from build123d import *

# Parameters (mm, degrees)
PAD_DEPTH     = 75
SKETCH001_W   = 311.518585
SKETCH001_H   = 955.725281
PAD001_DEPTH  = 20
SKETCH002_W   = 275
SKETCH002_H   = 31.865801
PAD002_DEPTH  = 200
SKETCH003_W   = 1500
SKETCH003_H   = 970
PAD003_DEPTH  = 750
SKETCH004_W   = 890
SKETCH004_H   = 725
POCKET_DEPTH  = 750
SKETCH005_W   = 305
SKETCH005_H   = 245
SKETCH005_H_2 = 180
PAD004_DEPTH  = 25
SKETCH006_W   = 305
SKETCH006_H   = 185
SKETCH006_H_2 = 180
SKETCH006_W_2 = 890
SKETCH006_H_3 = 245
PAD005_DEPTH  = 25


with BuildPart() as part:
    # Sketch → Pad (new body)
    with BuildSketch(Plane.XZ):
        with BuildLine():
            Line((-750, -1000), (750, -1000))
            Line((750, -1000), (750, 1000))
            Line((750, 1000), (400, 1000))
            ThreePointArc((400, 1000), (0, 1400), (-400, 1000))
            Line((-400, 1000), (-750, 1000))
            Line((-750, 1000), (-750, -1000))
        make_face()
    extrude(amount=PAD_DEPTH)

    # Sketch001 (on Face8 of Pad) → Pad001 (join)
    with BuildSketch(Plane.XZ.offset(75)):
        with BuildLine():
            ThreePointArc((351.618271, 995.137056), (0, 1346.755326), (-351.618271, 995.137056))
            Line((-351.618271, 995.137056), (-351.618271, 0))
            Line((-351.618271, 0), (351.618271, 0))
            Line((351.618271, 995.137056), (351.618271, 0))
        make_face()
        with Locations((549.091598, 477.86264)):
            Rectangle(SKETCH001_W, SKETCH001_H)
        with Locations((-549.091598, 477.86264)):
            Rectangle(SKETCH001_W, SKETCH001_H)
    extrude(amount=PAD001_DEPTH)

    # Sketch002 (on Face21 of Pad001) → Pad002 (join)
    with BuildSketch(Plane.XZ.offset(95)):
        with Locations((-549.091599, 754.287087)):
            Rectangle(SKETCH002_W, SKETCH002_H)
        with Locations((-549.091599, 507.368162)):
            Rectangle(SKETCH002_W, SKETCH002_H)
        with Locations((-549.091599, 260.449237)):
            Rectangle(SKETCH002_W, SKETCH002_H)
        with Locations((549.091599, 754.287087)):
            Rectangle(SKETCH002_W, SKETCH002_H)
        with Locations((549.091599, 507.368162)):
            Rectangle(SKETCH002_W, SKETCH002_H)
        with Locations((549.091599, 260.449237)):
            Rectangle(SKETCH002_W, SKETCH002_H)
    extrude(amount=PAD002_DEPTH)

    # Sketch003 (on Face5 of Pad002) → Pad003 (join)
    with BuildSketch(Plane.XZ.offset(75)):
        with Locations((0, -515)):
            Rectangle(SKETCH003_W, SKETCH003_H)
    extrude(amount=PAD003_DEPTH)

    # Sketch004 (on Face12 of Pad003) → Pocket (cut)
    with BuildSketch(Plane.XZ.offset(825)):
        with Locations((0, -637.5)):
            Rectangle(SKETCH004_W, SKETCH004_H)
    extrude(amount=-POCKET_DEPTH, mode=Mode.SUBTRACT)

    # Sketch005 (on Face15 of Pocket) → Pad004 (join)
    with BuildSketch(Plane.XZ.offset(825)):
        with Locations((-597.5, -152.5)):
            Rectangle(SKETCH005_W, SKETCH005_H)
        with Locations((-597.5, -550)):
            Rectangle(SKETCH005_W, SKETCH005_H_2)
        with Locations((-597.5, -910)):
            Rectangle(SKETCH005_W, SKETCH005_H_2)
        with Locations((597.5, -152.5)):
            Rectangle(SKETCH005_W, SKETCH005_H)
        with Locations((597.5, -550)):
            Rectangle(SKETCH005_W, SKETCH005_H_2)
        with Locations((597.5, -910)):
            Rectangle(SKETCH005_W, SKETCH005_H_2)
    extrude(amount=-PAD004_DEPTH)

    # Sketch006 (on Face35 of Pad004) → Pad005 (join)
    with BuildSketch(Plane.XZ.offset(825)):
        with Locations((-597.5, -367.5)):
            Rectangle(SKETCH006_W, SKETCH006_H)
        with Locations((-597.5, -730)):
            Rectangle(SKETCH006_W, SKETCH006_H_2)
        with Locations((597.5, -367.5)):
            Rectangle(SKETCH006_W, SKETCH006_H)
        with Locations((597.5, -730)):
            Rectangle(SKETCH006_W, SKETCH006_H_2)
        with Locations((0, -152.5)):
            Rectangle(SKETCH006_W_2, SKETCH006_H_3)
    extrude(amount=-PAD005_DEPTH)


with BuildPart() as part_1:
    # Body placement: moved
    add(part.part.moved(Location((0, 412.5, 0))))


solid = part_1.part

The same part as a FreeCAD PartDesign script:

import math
import FreeCAD as App
import Part
import Sketcher

V = App.Vector


def add_polygon(sketch, points):
    """Adds a closed chain of lines whose ends are joined by coincident constraints."""
    first, n = sketch.GeometryCount, len(points)
    for a, b in zip(points, points[1:] + points[:1]):
        sketch.addGeometry(Part.LineSegment(App.Vector(*a, 0), App.Vector(*b, 0)), False)
    for i in range(n):
        sketch.addConstraint(Sketcher.Constraint("Coincident", first + i, 2, first + (i + 1) % n, 1))

doc = App.newDocument("Part")
body = doc.addObject("PartDesign::Body", "Body")

# Sketch on XZ plane
sketch1 = body.newObject("Sketcher::SketchObject", "Sketch")
sketch1.AttachmentSupport = (doc.getObject("XZ_Plane"), [""])
sketch1.MapMode = "FlatFace"
sketch1.addGeometry([
    Part.LineSegment(V(-750, -1000, 0), V(750, -1000, 0)),  # 0
    Part.LineSegment(V(750, -1000, 0), V(750, 1000, 0)),  # 1
    Part.LineSegment(V(750, 1000, 0), V(400, 1000, 0)),  # 2
    Part.ArcOfCircle(Part.Circle(V(0, 1000, 0), V(0, 0, 1), 400), math.radians(0), math.radians(180)),  # 3
    Part.LineSegment(V(-400, 1000, 0), V(-750, 1000, 0)),  # 4
    Part.LineSegment(V(-750, 1000, 0), V(-750, -1000, 0)),  # 5
], False)
sketch1.addConstraint([
    Sketcher.Constraint("Coincident", 0, 2, 1, 1),
    Sketcher.Constraint("Coincident", 1, 2, 2, 1),
    Sketcher.Constraint("Coincident", 2, 2, 3, 1),
    Sketcher.Constraint("Coincident", 3, 2, 4, 1),
    Sketcher.Constraint("Coincident", 4, 2, 5, 1),
    Sketcher.Constraint("Coincident", 5, 2, 0, 1),
    Sketcher.Constraint("Horizontal", 0),
    Sketcher.Constraint("Vertical", 1),
    Sketcher.Constraint("Horizontal", 2),
    Sketcher.Constraint("Horizontal", 4),
    Sketcher.Constraint("Vertical", 5),
    Sketcher.Constraint("Symmetric", 0, 2, 4, 2, -1, 1),
    Sketcher.Constraint("PointOnObject", 3, 3, -2),
    Sketcher.Constraint("Horizontal", 3, 3, 1, 2),
    Sketcher.Constraint("Equal", 1, 5),
    Sketcher.Constraint("Radius", 3, 400.0),
    Sketcher.Constraint("DistanceX", 0, 1, 0, 2, 1500.0),
    Sketcher.Constraint("DistanceY", 1, 1, 1, 2, 2000.0),
])
pad1 = body.newObject("PartDesign::Pad", "Pad")
pad1.Profile = sketch1
pad1.Length = 75

# Sketch on XZ plane
sketch2 = body.newObject("Sketcher::SketchObject", "Sketch001")
sketch2.AttachmentSupport = (doc.getObject("XZ_Plane"), [""])
sketch2.MapMode = "FlatFace"
sketch2.AttachmentOffset = App.Placement(V(0, 0, 75), App.Rotation())
sketch2.addGeometry(Part.ArcOfCircle(Part.Circle(V(0, 995, 0), V(0, 0, 1), 352), math.radians(0), math.radians(180)), False)  # 0
sketch2.addGeometry(Part.LineSegment(V(-352, 995, 0), V(-352, 0, 0)), False)  # 1
sketch2.addGeometry(Part.LineSegment(V(-352, 0, 0), V(352, 0, 0)), False)  # 2
sketch2.addGeometry(Part.LineSegment(V(352, 0, 0), V(352, 995, 0)), False)  # 3
add_polygon(sketch2, [(393, 956), (393, 0), (705, 0), (705, 956)])  # lines 4-7
add_polygon(sketch2, [(-705, 956), (-705, 0), (-393, 0), (-393, 956)])  # lines 8-11
sketch2.addConstraint([
    Sketcher.Constraint("Tangent", 0, 2, 1, 1),
    Sketcher.Constraint("Coincident", 1, 2, 2, 1),
    Sketcher.Constraint("Coincident", 2, 2, 3, 1),
    Sketcher.Constraint("Tangent", 3, 2, 0, 1),
    Sketcher.Constraint("Vertical", 1),
    Sketcher.Constraint("Horizontal", 2),
    Sketcher.Constraint("Vertical", 3),
    Sketcher.Constraint("Vertical", 4),
    Sketcher.Constraint("Horizontal", 5),
    Sketcher.Constraint("Vertical", 6),
    Sketcher.Constraint("Horizontal", 7),
    Sketcher.Constraint("Vertical", 8),
    Sketcher.Constraint("Horizontal", 9),
    Sketcher.Constraint("Vertical", 10),
    Sketcher.Constraint("Horizontal", 11),
    Sketcher.Constraint("Symmetric", 1, 2, 2, 2, -1, 1),
    Sketcher.Constraint("Symmetric", 5, 2, 8, 2, -1, 1),
    Sketcher.Constraint("Symmetric", 4, 2, 9, 2, -2),
    Sketcher.Constraint("Horizontal", 7, 2, 10, 2),
    Sketcher.Constraint("Radius", 0, 351.618271),
    Sketcher.Constraint("DistanceY", 4, 2, 4, 1, 955.725281),
    Sketcher.Constraint("DistanceX", 5, 1, 5, 2, 311.518585),
    Sketcher.Constraint("DistanceY", 1, 2, 1, 1, 995.137056),
    Sketcher.Constraint("DistanceX", -1, 1, 5, 2, 704.85089),
])
pad2 = body.newObject("PartDesign::Pad", "Pad001")
pad2.Profile = sketch2
pad2.Length = 20

# Sketch on XZ plane
sketch3 = body.newObject("Sketcher::SketchObject", "Sketch002")
sketch3.AttachmentSupport = (doc.getObject("XZ_Plane"), [""])
sketch3.MapMode = "FlatFace"
sketch3.AttachmentOffset = App.Placement(V(0, 0, 95), App.Rotation())
add_polygon(sketch3, [(-687, 770), (-687, 738), (-412, 738), (-412, 770)])  # lines 0-3
add_polygon(sketch3, [(-687, 523), (-687, 491), (-412, 491), (-412, 523)])  # lines 4-7
add_polygon(sketch3, [(-687, 276), (-687, 245), (-412, 245), (-412, 276)])  # lines 8-11
add_polygon(sketch3, [(412, 770), (412, 738), (687, 738), (687, 770)])  # lines 12-15
add_polygon(sketch3, [(412, 523), (412, 491), (687, 491), (687, 523)])  # lines 16-19
add_polygon(sketch3, [(412, 276), (412, 245), (687, 245), (687, 276)])  # lines 20-23
sketch3.addConstraint([
    Sketcher.Constraint("Vertical", 0),
    Sketcher.Constraint("Horizontal", 1),
    Sketcher.Constraint("Vertical", 2),
    Sketcher.Constraint("Horizontal", 3),
    Sketcher.Constraint("Vertical", 4),
    Sketcher.Constraint("Horizontal", 5),
    Sketcher.Constraint("Vertical", 6),
    Sketcher.Constraint("Horizontal", 7),
    Sketcher.Constraint("Vertical", 8),
    Sketcher.Constraint("Horizontal", 9),
    Sketcher.Constraint("Vertical", 10),
    Sketcher.Constraint("Horizontal", 11),
    Sketcher.Constraint("Vertical", 12),
    Sketcher.Constraint("Horizontal", 13),
    Sketcher.Constraint("Vertical", 14),
    Sketcher.Constraint("Horizontal", 15),
    Sketcher.Constraint("Vertical", 16),
    Sketcher.Constraint("Horizontal", 17),
    Sketcher.Constraint("Vertical", 18),
    Sketcher.Constraint("Horizontal", 19),
    Sketcher.Constraint("Vertical", 20),
    Sketcher.Constraint("Horizontal", 21),
    Sketcher.Constraint("Vertical", 22),
    Sketcher.Constraint("Horizontal", 23),
    Sketcher.Constraint("Symmetric", 1, 2, 12, 2, -2),
    Sketcher.Constraint("Symmetric", 3, 2, 14, 2, -2),
    Sketcher.Constraint("Symmetric", 5, 2, 16, 2, -2),
    Sketcher.Constraint("Symmetric", 7, 2, 18, 2, -2),
    Sketcher.Constraint("Symmetric", 9, 2, 20, 2, -2),
    Sketcher.Constraint("Symmetric", 11, 2, 22, 2, -2),
    Sketcher.Constraint("Vertical", 3, 2, 4, 2),
    Sketcher.Constraint("Vertical", 2, 2, 5, 2),
    Sketcher.Constraint("Vertical", 7, 2, 8, 2),
    Sketcher.Constraint("Vertical", 6, 2, 9, 2),
    Sketcher.Constraint("Equal", 2, 4),
    Sketcher.Constraint("Equal", 6, 8),
    Sketcher.Constraint("DistanceX", 1, 1, 1, 2, 275.0),
    Sketcher.Constraint("DistanceY", 0, 2, 0, 1, 31.865801),
    Sketcher.Constraint("DistanceX", 0, 2, -1, 1, 686.591599),
    Sketcher.Constraint("DistanceY", -1, 1, 4, 2, 491.435262),
    Sketcher.Constraint("DistanceY", 8, 2, 0, 2, 493.83785),
    Sketcher.Constraint("DistanceY", -1, 1, 0, 2, 738.354186),
])
pad3 = body.newObject("PartDesign::Pad", "Pad002")
pad3.Profile = sketch3
pad3.Length = 200

# Sketch on XZ plane
sketch4 = body.newObject("Sketcher::SketchObject", "Sketch003")
sketch4.AttachmentSupport = (doc.getObject("XZ_Plane"), [""])
sketch4.MapMode = "FlatFace"
sketch4.AttachmentOffset = App.Placement(V(0, 0, 75), App.Rotation())
add_polygon(sketch4, [(-750, -30), (-750, -1000), (750, -1000), (750, -30)])  # lines 0-3
sketch4.addConstraint([
    Sketcher.Constraint("Vertical", 0),
    Sketcher.Constraint("Horizontal", 1),
    Sketcher.Constraint("Vertical", 2),
    Sketcher.Constraint("Horizontal", 3),
    Sketcher.Constraint("DistanceX", 1, 1, 1, 2, 1500.0),
    Sketcher.Constraint("DistanceY", 0, 2, 0, 1, 970.0),
    Sketcher.Constraint("DistanceX", 0, 2, -1, 1, 750.0),
    Sketcher.Constraint("DistanceY", 0, 2, -1, 1, 1000.0),
])
pad4 = body.newObject("PartDesign::Pad", "Pad003")
pad4.Profile = sketch4
pad4.Length = 750

# Sketch on XZ plane
sketch5 = body.newObject("Sketcher::SketchObject", "Sketch004")
sketch5.AttachmentSupport = (doc.getObject("XZ_Plane"), [""])
sketch5.MapMode = "FlatFace"
sketch5.AttachmentOffset = App.Placement(V(0, 0, 825), App.Rotation())
add_polygon(sketch5, [(-445, -275), (-445, -1000), (445, -1000), (445, -275)])  # lines 0-3
sketch5.addConstraint([
    Sketcher.Constraint("Vertical", 0),
    Sketcher.Constraint("Horizontal", 1),
    Sketcher.Constraint("Vertical", 2),
    Sketcher.Constraint("Horizontal", 3),
    Sketcher.Constraint("DistanceX", 1, 1, 1, 2, 890.0),
    Sketcher.Constraint("DistanceY", 0, 2, 0, 1, 725.0),
    Sketcher.Constraint("DistanceX", 0, 2, -1, 1, 445.0),
    Sketcher.Constraint("DistanceY", 0, 2, -1, 1, 1000.0),
])
pocket1 = body.newObject("PartDesign::Pocket", "Pocket")
pocket1.Profile = sketch5
pocket1.Length = 750

# Sketch on XZ plane
sketch6 = body.newObject("Sketcher::SketchObject", "Sketch005")
sketch6.AttachmentSupport = (doc.getObject("XZ_Plane"), [""])
sketch6.MapMode = "FlatFace"
sketch6.AttachmentOffset = App.Placement(V(0, 0, 825), App.Rotation())
add_polygon(sketch6, [(-750, -30), (-750, -275), (-445, -275), (-445, -30)])  # lines 0-3
add_polygon(sketch6, [(-750, -460), (-750, -640), (-445, -640), (-445, -460)])  # lines 4-7
add_polygon(sketch6, [(-750, -820), (-750, -1000), (-445, -1000), (-445, -820)])  # lines 8-11
add_polygon(sketch6, [(445, -30), (445, -275), (750, -275), (750, -30)])  # lines 12-15
add_polygon(sketch6, [(445, -460), (445, -640), (750, -640), (750, -460)])  # lines 16-19
add_polygon(sketch6, [(445, -820), (445, -1000), (750, -1000), (750, -820)])  # lines 20-23
sketch6.addConstraint([
    Sketcher.Constraint("Vertical", 0),
    Sketcher.Constraint("Horizontal", 1),
    Sketcher.Constraint("Vertical", 2),
    Sketcher.Constraint("Horizontal", 3),
    Sketcher.Constraint("Vertical", 4),
    Sketcher.Constraint("Horizontal", 5),
    Sketcher.Constraint("Vertical", 6),
    Sketcher.Constraint("Horizontal", 7),
    Sketcher.Constraint("Vertical", 8),
    Sketcher.Constraint("Horizontal", 9),
    Sketcher.Constraint("Vertical", 10),
    Sketcher.Constraint("Horizontal", 11),
    Sketcher.Constraint("Vertical", 12),
    Sketcher.Constraint("Horizontal", 13),
    Sketcher.Constraint("Vertical", 14),
    Sketcher.Constraint("Horizontal", 15),
    Sketcher.Constraint("Vertical", 16),
    Sketcher.Constraint("Horizontal", 17),
    Sketcher.Constraint("Vertical", 18),
    Sketcher.Constraint("Horizontal", 19),
    Sketcher.Constraint("Vertical", 20),
    Sketcher.Constraint("Horizontal", 21),
    Sketcher.Constraint("Vertical", 22),
    Sketcher.Constraint("Horizontal", 23),
    Sketcher.Constraint("Symmetric", 1, 2, 12, 2, -2),
    Sketcher.Constraint("Symmetric", 3, 2, 14, 2, -2),
    Sketcher.Constraint("Symmetric", 5, 2, 16, 2, -2),
    Sketcher.Constraint("Symmetric", 7, 2, 18, 2, -2),
    Sketcher.Constraint("Symmetric", 9, 2, 20, 2, -2),
    Sketcher.Constraint("Symmetric", 11, 2, 22, 2, -2),
    Sketcher.Constraint("Vertical", 3, 2, 4, 2),
    Sketcher.Constraint("Vertical", 2, 2, 5, 2),
    Sketcher.Constraint("Vertical", 7, 2, 8, 2),
    Sketcher.Constraint("Vertical", 6, 2, 9, 2),
    Sketcher.Constraint("Equal", 6, 8),
    Sketcher.Constraint("DistanceX", 1, 1, 1, 2, 305.0),
    Sketcher.Constraint("DistanceY", 0, 2, 0, 1, 245.0),
    Sketcher.Constraint("DistanceY", 4, 2, 4, 1, 180.0),
    Sketcher.Constraint("DistanceX", 0, 2, -1, 1, 750.0),
    Sketcher.Constraint("DistanceY", 0, 2, -1, 1, 275.0),
    Sketcher.Constraint("DistanceY", 4, 2, -1, 1, 640.0),
    Sketcher.Constraint("DistanceY", 8, 2, -1, 1, 1000.0),
])
pad5 = body.newObject("PartDesign::Pad", "Pad004")
pad5.Profile = sketch6
pad5.Length = 25
pad5.Reversed = True

# Sketch on XZ plane
sketch7 = body.newObject("Sketcher::SketchObject", "Sketch006")
sketch7.AttachmentSupport = (doc.getObject("XZ_Plane"), [""])
sketch7.MapMode = "FlatFace"
sketch7.AttachmentOffset = App.Placement(V(0, 0, 825), App.Rotation())
add_polygon(sketch7, [(-750, -275), (-750, -460), (-445, -460), (-445, -275)])  # lines 0-3
add_polygon(sketch7, [(-750, -640), (-750, -820), (-445, -820), (-445, -640)])  # lines 4-7
add_polygon(sketch7, [(445, -275), (445, -460), (750, -460), (750, -275)])  # lines 8-11
add_polygon(sketch7, [(445, -640), (445, -820), (750, -820), (750, -640)])  # lines 12-15
add_polygon(sketch7, [(-445, -30), (-445, -275), (445, -275), (445, -30)])  # lines 16-19
sketch7.addConstraint([
    Sketcher.Constraint("Vertical", 0),
    Sketcher.Constraint("Horizontal", 1),
    Sketcher.Constraint("Vertical", 2),
    Sketcher.Constraint("Horizontal", 3),
    Sketcher.Constraint("Vertical", 4),
    Sketcher.Constraint("Horizontal", 5),
    Sketcher.Constraint("Vertical", 6),
    Sketcher.Constraint("Horizontal", 7),
    Sketcher.Constraint("Vertical", 8),
    Sketcher.Constraint("Horizontal", 9),
    Sketcher.Constraint("Vertical", 10),
    Sketcher.Constraint("Horizontal", 11),
    Sketcher.Constraint("Vertical", 12),
    Sketcher.Constraint("Horizontal", 13),
    Sketcher.Constraint("Vertical", 14),
    Sketcher.Constraint("Horizontal", 15),
    Sketcher.Constraint("Vertical", 16),
    Sketcher.Constraint("Horizontal", 17),
    Sketcher.Constraint("Vertical", 18),
    Sketcher.Constraint("Horizontal", 19),
    Sketcher.Constraint("Coincident", 16, 2, 2, 2),
    Sketcher.Constraint("Coincident", 17, 2, 11, 2),
    Sketcher.Constraint("Symmetric", 1, 2, 8, 2, -2),
    Sketcher.Constraint("Symmetric", 5, 2, 12, 2, -2),
    Sketcher.Constraint("Symmetric", 7, 2, 14, 2, -2),
    Sketcher.Constraint("Vertical", 3, 2, 4, 2),
    Sketcher.Constraint("Vertical", 2, 2, 5, 2),
    Sketcher.Constraint("Vertical", 10, 2, 13, 2),
    Sketcher.Constraint("DistanceX", 1, 1, 1, 2, 305.0),
    Sketcher.Constraint("DistanceX", 17, 1, 17, 2, 890.0),
    Sketcher.Constraint("DistanceY", 0, 2, 0, 1, 185.0),
    Sketcher.Constraint("DistanceY", 4, 2, 4, 1, 180.0),
    Sketcher.Constraint("DistanceY", 16, 2, 16, 1, 245.0),
    Sketcher.Constraint("DistanceY", 0, 2, -1, 1, 460.0),
    Sketcher.Constraint("DistanceY", 4, 2, -1, 1, 820.0),
])
pad6 = body.newObject("PartDesign::Pad", "Pad005")
pad6.Profile = sketch7
pad6.Length = 25
pad6.Reversed = True
body2 = doc.addObject("PartDesign::Body", "Body001")
doc.recompute()

body.Placement = App.Placement(V(0, 412.5, 0), App.Rotation(V(0, 0, 1), 0))
boolean = body2.newObject("PartDesign::Boolean", "Boolean")
boolean.Type = "Fuse"
boolean.addObjects([body])

doc.recompute()
